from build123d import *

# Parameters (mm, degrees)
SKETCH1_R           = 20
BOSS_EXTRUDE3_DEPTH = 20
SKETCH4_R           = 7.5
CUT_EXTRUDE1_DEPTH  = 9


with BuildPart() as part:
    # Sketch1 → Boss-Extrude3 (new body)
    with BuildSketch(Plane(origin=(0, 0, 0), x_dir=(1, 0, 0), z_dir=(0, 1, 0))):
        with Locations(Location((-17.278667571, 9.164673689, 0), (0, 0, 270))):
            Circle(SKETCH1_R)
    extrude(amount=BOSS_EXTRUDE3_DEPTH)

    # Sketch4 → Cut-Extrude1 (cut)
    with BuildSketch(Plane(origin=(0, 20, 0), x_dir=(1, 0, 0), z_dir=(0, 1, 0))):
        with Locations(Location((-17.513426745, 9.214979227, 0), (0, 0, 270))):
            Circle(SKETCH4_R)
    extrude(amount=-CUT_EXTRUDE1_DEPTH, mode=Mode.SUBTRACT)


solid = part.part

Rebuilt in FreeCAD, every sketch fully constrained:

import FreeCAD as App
import Part
import Sketcher
from FreeCAD import Vector
Q = App.Units.Quantity

doc = App.newDocument("Part")
params = doc.addObject("Spreadsheet::Sheet", "Params")
for row, (alias, value) in enumerate([
    ("sketch1_diameter", "40 mm"),
    ("pad1_length", "20 mm"),
    ("sketch2_diameter", "15 mm"),
    ("pocket1_length", "9 mm"),
], start=1):
    params.set(f"A{row}", alias)
    params.set(f"B{row}", "=" + value)
    params.setAlias(f"B{row}", alias)

body = doc.addObject("PartDesign::Body", "Body")

sketch1 = body.newObject("Sketcher::SketchObject", "Sketch")
sketch1.AttachmentSupport = (doc.getObject("XZ_Plane"), [""])
sketch1.MapMode = "FlatFace"
sketch1.addGeometry(Part.Circle(Vector(-17, -9, 0), Vector(0, 0, 1), 20), False)
sketch1.addConstraint([
    Sketcher.Constraint("Diameter", 0, Q("40 mm")),
    Sketcher.Constraint("DistanceX", 0, 3, -1, 1, Q("17.278668 mm")),
    Sketcher.Constraint("DistanceY", 0, 3, -1, 1, Q("9.164674 mm")),
])
sketch1.setExpression("Constraints[0]", "Params.sketch1_diameter")
pad1 = body.newObject("PartDesign::Pad", "Pad")
pad1.Profile = sketch1
pad1.setExpression("Length", "Params.pad1_length")
pad1.Reversed = True

sketch2 = body.newObject("Sketcher::SketchObject", "Sketch001")
sketch2.AttachmentSupport = (doc.getObject("XZ_Plane"), [""])
sketch2.MapMode = "FlatFace"
sketch2.AttachmentOffset = App.Placement(Vector(0, 0, -20), App.Rotation())
sketch2.addGeometry(Part.Circle(Vector(-18, -9, 0), Vector(0, 0, 1), 8), False)
sketch2.addConstraint([
    Sketcher.Constraint("Diameter", 0, Q("15 mm")),
    Sketcher.Constraint("DistanceY", 0, 3, -1, 1, Q("9.214979 mm")),
    Sketcher.Constraint("DistanceX", 0, 3, -1, 1, Q("17.513427 mm")),
])
sketch2.setExpression("Constraints[0]", "Params.sketch2_diameter")
pocket1 = body.newObject("PartDesign::Pocket", "Pocket")
pocket1.Profile = sketch2
pocket1.setExpression("Length", "Params.pocket1_length")
pocket1.Reversed = True

doc.recompute()
